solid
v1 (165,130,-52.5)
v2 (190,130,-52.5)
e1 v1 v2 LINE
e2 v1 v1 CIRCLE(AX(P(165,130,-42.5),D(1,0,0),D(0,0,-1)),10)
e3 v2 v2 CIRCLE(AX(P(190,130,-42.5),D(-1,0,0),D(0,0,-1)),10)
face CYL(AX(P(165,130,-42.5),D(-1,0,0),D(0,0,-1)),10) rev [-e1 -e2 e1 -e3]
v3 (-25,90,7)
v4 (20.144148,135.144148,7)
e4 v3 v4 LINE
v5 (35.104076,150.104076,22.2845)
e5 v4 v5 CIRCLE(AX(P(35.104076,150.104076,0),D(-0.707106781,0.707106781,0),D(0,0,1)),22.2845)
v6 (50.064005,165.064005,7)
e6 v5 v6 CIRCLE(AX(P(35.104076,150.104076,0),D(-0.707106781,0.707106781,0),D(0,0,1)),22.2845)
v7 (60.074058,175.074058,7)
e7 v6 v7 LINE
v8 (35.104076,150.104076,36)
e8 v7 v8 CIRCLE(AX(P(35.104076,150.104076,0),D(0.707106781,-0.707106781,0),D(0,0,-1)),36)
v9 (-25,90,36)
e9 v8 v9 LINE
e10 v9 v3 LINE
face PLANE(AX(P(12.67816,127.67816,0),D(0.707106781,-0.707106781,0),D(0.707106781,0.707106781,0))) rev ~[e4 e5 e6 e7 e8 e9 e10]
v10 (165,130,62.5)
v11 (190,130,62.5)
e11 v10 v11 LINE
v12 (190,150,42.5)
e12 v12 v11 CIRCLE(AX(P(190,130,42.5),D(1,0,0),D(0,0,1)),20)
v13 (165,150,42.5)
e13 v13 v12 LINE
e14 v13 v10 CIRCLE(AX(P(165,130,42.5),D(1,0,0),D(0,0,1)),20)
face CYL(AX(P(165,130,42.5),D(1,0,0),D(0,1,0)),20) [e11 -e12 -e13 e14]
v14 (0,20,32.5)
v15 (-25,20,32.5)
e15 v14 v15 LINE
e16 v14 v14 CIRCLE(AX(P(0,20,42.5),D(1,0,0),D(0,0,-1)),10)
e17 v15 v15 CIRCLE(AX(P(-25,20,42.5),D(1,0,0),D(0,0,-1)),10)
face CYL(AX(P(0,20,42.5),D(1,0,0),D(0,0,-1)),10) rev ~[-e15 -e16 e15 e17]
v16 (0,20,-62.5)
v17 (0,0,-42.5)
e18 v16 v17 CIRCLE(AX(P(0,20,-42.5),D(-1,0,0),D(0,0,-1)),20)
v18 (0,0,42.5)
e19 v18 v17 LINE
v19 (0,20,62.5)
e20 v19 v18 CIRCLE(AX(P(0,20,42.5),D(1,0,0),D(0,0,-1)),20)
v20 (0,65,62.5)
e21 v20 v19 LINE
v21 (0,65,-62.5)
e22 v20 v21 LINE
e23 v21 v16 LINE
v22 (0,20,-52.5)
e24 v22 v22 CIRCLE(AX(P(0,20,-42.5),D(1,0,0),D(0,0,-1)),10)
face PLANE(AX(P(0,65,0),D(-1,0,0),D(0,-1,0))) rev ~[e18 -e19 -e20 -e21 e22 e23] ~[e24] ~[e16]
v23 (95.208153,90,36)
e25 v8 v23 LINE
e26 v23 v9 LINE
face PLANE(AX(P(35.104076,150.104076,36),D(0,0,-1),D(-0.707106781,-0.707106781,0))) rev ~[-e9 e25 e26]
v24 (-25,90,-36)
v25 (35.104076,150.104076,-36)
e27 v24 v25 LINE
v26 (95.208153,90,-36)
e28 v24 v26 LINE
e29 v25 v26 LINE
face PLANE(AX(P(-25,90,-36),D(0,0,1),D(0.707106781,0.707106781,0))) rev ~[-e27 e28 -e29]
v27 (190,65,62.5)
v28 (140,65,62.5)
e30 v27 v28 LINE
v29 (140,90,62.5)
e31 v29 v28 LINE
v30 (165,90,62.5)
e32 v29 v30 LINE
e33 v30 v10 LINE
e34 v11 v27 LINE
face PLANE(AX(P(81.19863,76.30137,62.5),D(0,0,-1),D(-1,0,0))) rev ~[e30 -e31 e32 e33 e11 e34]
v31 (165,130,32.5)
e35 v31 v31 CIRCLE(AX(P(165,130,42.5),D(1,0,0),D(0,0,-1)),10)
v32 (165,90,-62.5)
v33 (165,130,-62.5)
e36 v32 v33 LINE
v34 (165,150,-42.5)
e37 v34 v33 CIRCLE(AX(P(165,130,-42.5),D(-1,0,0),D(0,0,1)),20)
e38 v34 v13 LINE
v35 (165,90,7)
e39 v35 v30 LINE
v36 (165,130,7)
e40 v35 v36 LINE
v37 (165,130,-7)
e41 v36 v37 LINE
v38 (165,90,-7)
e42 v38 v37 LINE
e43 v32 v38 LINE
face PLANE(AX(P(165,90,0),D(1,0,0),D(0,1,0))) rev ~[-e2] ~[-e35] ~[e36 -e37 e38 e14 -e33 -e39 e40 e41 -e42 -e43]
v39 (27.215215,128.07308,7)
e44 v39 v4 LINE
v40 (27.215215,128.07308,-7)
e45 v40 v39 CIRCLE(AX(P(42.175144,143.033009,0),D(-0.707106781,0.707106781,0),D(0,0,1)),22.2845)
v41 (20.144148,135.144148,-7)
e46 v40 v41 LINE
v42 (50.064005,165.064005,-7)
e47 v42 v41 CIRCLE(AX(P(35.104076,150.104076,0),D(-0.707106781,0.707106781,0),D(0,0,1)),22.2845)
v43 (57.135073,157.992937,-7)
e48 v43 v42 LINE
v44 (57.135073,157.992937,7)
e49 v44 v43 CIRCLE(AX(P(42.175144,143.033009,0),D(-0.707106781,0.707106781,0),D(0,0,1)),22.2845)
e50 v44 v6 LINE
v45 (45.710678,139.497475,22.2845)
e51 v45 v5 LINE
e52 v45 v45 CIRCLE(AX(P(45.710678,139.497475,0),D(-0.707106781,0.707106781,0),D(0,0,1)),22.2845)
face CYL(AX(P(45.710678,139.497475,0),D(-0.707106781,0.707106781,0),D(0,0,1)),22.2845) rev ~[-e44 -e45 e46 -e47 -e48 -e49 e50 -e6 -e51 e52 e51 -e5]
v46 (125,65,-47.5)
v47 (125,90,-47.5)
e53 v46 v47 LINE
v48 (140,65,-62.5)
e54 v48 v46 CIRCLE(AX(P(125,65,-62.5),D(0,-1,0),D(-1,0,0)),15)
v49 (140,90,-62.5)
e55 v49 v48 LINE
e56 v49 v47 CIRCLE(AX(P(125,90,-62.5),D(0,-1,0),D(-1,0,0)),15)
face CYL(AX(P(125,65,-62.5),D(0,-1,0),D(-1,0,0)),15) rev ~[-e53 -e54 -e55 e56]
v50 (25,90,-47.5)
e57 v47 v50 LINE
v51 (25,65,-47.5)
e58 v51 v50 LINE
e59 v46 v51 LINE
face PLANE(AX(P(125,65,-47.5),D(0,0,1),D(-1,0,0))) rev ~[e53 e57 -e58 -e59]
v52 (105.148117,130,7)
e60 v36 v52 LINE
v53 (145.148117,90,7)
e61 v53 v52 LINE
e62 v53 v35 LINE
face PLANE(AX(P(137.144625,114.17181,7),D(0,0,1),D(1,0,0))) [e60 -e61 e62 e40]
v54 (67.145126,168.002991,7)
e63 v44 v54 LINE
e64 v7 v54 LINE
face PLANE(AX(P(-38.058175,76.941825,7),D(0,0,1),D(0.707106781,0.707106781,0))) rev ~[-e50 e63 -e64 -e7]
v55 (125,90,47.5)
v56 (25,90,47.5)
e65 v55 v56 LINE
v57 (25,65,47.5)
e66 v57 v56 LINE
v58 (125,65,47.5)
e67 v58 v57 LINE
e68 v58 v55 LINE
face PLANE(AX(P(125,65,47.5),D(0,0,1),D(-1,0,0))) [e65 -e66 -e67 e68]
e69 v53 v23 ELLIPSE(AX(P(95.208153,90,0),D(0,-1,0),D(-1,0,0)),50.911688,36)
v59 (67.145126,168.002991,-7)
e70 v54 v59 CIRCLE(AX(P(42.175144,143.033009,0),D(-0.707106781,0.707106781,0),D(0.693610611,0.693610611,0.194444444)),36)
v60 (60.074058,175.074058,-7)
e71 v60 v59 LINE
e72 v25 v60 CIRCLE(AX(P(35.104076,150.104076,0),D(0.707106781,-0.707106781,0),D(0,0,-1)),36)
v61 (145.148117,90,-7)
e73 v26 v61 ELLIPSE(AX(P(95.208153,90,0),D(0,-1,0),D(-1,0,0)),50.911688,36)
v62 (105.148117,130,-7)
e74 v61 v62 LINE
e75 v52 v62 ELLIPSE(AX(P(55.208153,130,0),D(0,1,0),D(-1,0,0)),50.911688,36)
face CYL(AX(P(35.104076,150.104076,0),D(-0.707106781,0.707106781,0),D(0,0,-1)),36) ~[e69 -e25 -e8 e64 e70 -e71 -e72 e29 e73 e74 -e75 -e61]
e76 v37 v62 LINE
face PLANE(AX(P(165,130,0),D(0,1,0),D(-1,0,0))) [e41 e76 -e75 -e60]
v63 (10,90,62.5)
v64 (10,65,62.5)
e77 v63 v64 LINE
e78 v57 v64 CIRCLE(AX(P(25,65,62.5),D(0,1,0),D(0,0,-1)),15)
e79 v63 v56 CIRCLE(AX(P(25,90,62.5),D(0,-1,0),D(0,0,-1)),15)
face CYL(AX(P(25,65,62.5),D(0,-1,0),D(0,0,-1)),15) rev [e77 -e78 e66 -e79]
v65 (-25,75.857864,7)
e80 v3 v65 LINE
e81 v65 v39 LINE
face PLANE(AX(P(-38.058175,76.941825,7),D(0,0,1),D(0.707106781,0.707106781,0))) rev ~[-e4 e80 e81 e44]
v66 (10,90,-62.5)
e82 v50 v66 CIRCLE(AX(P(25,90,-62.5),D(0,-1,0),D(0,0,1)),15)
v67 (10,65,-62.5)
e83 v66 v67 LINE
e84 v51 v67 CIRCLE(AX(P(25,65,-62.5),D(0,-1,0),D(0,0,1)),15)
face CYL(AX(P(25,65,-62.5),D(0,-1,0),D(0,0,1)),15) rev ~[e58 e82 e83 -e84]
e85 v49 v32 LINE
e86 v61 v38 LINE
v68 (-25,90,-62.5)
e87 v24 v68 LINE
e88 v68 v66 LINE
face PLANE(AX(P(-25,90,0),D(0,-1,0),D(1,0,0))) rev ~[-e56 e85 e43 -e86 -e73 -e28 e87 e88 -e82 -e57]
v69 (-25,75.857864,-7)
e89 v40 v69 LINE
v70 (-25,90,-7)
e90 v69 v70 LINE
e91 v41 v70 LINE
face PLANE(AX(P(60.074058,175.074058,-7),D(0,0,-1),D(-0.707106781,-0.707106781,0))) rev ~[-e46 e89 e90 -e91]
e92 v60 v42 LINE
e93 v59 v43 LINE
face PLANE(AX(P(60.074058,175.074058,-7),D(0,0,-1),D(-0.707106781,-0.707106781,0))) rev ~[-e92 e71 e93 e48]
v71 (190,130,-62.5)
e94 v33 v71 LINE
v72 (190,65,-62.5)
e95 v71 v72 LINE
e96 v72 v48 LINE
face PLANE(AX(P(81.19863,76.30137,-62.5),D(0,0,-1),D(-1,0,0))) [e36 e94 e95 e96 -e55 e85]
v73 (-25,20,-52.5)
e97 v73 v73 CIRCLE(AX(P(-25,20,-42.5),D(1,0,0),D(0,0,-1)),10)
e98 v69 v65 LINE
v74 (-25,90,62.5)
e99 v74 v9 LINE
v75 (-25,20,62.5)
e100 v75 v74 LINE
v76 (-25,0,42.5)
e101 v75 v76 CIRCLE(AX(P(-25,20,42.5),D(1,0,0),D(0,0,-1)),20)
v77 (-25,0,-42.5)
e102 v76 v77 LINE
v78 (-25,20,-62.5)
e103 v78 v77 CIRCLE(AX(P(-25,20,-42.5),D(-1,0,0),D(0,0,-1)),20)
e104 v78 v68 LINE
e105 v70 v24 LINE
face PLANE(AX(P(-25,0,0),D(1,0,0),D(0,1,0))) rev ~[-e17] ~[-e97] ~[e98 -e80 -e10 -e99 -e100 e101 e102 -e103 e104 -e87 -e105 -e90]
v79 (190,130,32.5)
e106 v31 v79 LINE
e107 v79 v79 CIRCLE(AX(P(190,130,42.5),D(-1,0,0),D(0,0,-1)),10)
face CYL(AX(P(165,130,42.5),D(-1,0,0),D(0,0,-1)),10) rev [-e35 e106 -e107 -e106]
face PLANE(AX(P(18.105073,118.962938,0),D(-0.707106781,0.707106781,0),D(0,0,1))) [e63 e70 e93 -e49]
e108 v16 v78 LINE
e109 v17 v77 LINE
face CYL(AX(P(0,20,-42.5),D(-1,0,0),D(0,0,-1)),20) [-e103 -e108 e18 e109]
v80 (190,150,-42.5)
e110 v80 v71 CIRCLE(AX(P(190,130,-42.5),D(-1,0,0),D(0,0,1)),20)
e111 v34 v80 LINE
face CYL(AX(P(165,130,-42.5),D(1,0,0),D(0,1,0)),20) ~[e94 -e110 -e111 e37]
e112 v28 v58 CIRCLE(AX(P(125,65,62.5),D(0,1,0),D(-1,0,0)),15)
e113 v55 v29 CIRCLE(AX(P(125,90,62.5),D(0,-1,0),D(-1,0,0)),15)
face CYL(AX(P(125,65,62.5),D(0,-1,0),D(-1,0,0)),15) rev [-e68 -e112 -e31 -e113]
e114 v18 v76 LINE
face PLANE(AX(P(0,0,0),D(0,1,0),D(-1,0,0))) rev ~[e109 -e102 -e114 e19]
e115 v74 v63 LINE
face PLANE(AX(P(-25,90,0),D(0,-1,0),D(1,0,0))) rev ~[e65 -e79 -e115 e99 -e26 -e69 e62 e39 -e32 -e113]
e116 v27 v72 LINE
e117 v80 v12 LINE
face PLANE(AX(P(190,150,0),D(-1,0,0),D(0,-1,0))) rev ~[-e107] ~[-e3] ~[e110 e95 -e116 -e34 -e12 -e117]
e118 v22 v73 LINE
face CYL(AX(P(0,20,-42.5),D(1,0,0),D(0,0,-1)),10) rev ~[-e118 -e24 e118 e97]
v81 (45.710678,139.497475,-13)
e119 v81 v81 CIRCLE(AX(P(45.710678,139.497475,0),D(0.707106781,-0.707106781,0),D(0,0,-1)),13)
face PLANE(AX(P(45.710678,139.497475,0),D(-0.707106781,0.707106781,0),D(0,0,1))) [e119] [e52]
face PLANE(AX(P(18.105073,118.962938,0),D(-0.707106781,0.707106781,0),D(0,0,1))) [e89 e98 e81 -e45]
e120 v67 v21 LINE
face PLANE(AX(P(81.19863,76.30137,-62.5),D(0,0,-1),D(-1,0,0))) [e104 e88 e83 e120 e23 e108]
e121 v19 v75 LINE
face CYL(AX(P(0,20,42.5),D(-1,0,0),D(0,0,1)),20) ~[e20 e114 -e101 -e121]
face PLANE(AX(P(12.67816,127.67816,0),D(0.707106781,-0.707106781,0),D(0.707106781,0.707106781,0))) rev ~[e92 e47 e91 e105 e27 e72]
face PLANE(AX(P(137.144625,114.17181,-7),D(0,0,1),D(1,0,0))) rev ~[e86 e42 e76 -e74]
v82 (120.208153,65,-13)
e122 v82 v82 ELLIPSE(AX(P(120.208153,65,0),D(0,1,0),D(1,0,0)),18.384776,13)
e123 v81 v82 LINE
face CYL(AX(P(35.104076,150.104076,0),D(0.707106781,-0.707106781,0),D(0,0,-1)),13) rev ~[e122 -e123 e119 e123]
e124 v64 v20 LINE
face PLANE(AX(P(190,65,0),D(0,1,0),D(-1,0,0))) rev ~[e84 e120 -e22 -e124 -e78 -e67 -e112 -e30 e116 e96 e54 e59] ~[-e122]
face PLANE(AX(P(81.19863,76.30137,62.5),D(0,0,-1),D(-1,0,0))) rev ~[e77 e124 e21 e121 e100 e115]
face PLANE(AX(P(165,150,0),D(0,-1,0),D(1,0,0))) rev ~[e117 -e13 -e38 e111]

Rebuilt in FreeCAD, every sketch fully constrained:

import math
import FreeCAD as App
import Part
import Sketcher
from FreeCAD import Vector
Q = App.Units.Quantity


def edges_at(feature, points):
    """Names of the edges that pass closest to the given points."""
    edges = feature.Shape.Edges
    near = lambda p: min(range(len(edges)), key=lambda i: edges[i].distToShape(Part.Vertex(*p))[0])
    return sorted({f"Edge{near(p) + 1}" for p in points})

doc = App.newDocument("Part")
body = doc.addObject("PartDesign::Body", "Body")

# Sketch on XY plane
sketch1 = body.newObject("Sketcher::SketchObject", "Sketch")
sketch1.AttachmentSupport = (doc.getObject("XY_Plane"), [""])
sketch1.MapMode = "FlatFace"
sketch1.addGeometry([
    Part.LineSegment(Vector(190, 65, 0), Vector(190, 150, 0)),  # 0
    Part.LineSegment(Vector(190, 150, 0), Vector(165, 150, 0)),  # 1
    Part.LineSegment(Vector(165, 150, 0), Vector(165, 90, 0)),  # 2
    Part.LineSegment(Vector(165, 90, 0), Vector(-25, 90, 0)),  # 3
    Part.LineSegment(Vector(-25, 90, 0), Vector(-25, 0, 0)),  # 4
    Part.LineSegment(Vector(-25, 0, 0), Vector(0, 0, 0)),  # 5
    Part.LineSegment(Vector(0, 0, 0), Vector(0, 65, 0)),  # 6
    Part.LineSegment(Vector(0, 65, 0), Vector(190, 65, 0)),  # 7
], False)
sketch1.addConstraint([
    Sketcher.Constraint("Coincident", 0, 2, 1, 1),
    Sketcher.Constraint("Coincident", 1, 2, 2, 1),
    Sketcher.Constraint("Coincident", 2, 2, 3, 1),
    Sketcher.Constraint("Coincident", 3, 2, 4, 1),
    Sketcher.Constraint("Coincident", 4, 2, 5, 1),
    Sketcher.Constraint("Coincident", 5, 2, 6, 1),
    Sketcher.Constraint("Coincident", 6, 2, 7, 1),
    Sketcher.Constraint("Coincident", 7, 2, 0, 1),
    Sketcher.Constraint("Vertical", 0),
    Sketcher.Constraint("Horizontal", 1),
    Sketcher.Constraint("Vertical", 2),
    Sketcher.Constraint("Horizontal", 3),
    Sketcher.Constraint("Vertical", 4),
    Sketcher.Constraint("Horizontal", 5),
    Sketcher.Constraint("Vertical", 6),
    Sketcher.Constraint("Horizontal", 7),
    Sketcher.Constraint("Coincident", 5, 2, -1, 1),
    Sketcher.Constraint("Equal", 1, 5),
    Sketcher.Constraint("DistanceX", 1, 2, 1, 1, Q("25 mm")),
    Sketcher.Constraint("DistanceX", 3, 2, 3, 1, Q("190 mm")),
    Sketcher.Constraint("DistanceY", 0, 1, 0, 2, Q("85 mm")),
    Sketcher.Constraint("DistanceY", 2, 2, 2, 1, Q("60 mm")),
    Sketcher.Constraint("DistanceY", 4, 2, 4, 1, Q("90 mm")),
])
pad1 = body.newObject("PartDesign::Pad", "Pad")
pad1.Profile = sketch1
pad1.Length = 125
pad1.Midplane = True

# Sketch on an angled plane
sketch2 = body.newObject("Sketcher::SketchObject", "Sketch001")
sketch2.Placement = App.Placement(Vector(-57.5, 57.5, 0), App.Rotation(Vector(0.707106781, 0.707106781, 0), Vector(0, 0, 0.999999999), Vector(0.707106781, -0.707106781, 0), "ZXY"))
sketch2.addGeometry([
    Part.LineSegment(Vector(45.961941, -36, 0), Vector(130.961941, -36, 0)),
    Part.ArcOfCircle(Part.Circle(Vector(130.961941, 0, 0), Vector(0, 0, 1), 36), math.radians(-90), math.radians(90)),
    Part.LineSegment(Vector(130.961941, 36, 0), Vector(45.961941, 36, 0)),
    Part.LineSegment(Vector(45.961941, 36, 0), Vector(45.961941, -36, 0)),
], False)
sketch2.addConstraint([
    Sketcher.Constraint("Tangent", 0, 2, 1, 1),
    Sketcher.Constraint("Tangent", 1, 2, 2, 1),
    Sketcher.Constraint("Coincident", 2, 2, 3, 1),
    Sketcher.Constraint("Coincident", 3, 2, 0, 1),
    Sketcher.Constraint("Horizontal", 0),
    Sketcher.Constraint("Horizontal", 2),
    Sketcher.Constraint("Vertical", 3),
    Sketcher.Constraint("PointOnObject", 1, 3, -1),
    Sketcher.Constraint("Radius", 1, Q("36 mm")),
    Sketcher.Constraint("DistanceX", 0, 1, 0, 2, Q("85 mm")),
    Sketcher.Constraint("DistanceX", -1, 1, 1, 3, Q("130.961941 mm")),
])
pad2 = body.newObject("PartDesign::Pad", "Pad001")
pad2.Profile = sketch2
pad2.Type = "UpToFirst"

# Sketch on XZ plane
sketch3 = body.newObject("Sketcher::SketchObject", "Sketch002")
sketch3.AttachmentSupport = (doc.getObject("XZ_Plane"), [""])
sketch3.MapMode = "FlatFace"
sketch3.AttachmentOffset = App.Placement(Vector(0, 0, -65), App.Rotation())
sketch3.addGeometry([
    Part.LineSegment(Vector(25, 47.5, 0), Vector(125, 47.5, 0)),  # 0
    Part.ArcOfCircle(Part.Circle(Vector(125, 62.5, 0), Vector(0, 0, 1), 15), math.radians(-90), math.radians(180)),  # 1
    Part.LineSegment(Vector(110, 62.5, 0), Vector(40, 62.5, 0)),  # 2
    Part.ArcOfCircle(Part.Circle(Vector(25, 62.5, 0), Vector(0, 0, 1), 15), math.radians(0), math.radians(270)),  # 3
    Part.LineSegment(Vector(125, -47.5, 0), Vector(25, -47.5, 0)),  # 4
    Part.ArcOfCircle(Part.Circle(Vector(25, -62.5, 0), Vector(0, 0, 1), 15), math.radians(90), math.radians(360)),  # 5
    Part.LineSegment(Vector(40, -62.5, 0), Vector(110, -62.5, 0)),  # 6
    Part.ArcOfCircle(Part.Circle(Vector(125, -62.5, 0), Vector(0, 0, 1), 15), math.radians(180), math.radians(450)),  # 7
], False)
sketch3.addConstraint([
    Sketcher.Constraint("Tangent", 0, 2, 1, 1),
    Sketcher.Constraint("Coincident", 1, 2, 2, 1),
    Sketcher.Constraint("Coincident", 2, 2, 3, 1),
    Sketcher.Constraint("Tangent", 3, 2, 0, 1),
    Sketcher.Constraint("Tangent", 4, 2, 5, 1),
    Sketcher.Constraint("Coincident", 5, 2, 6, 1),
    Sketcher.Constraint("Coincident", 6, 2, 7, 1),
    Sketcher.Constraint("Tangent", 7, 2, 4, 1),
    Sketcher.Constraint("Horizontal", 0),
    Sketcher.Constraint("Horizontal", 2),
    Sketcher.Constraint("Horizontal", 4),
    Sketcher.Constraint("Horizontal", 6),
    Sketcher.Constraint("Equal", 1, 3),
    Sketcher.Constraint("Equal", 3, 5),
    Sketcher.Constraint("Equal", 5, 7),
    Sketcher.Constraint("Symmetric", 3, 3, 5, 3, -1),
    Sketcher.Constraint("Symmetric", 1, 2, 6, 2, -1),
    Sketcher.Constraint("Horizontal", 3, 3, 1, 2),
    Sketcher.Constraint("Radius", 1, Q("15 mm")),
    Sketcher.Constraint("DistanceX", 0, 1, 0, 2, Q("100 mm")),
    Sketcher.Constraint("DistanceX", -1, 1, 1, 3, Q("125 mm")),
    Sketcher.Constraint("DistanceY", 5, 3, 3, 3, Q("125 mm")),
])
pocket1 = body.newObject("PartDesign::Pocket", "Pocket")
pocket1.Profile = sketch3
pocket1.Type = "ThroughAll"
doc.recompute()

fillet = body.newObject("PartDesign::Fillet", "Fillet")
fillet.Base = (pocket1, edges_at(pocket1, [
    (177.5, 150, -62.5),
    (-12.5, 0, 62.5),
    (177.5, 150, 62.5),
    (-12.5, 0, -62.5),
]))
fillet.Radius = 20

# Sketch on YZ plane
sketch4 = body.newObject("Sketcher::SketchObject", "Sketch003")
sketch4.AttachmentSupport = (doc.getObject("YZ_Plane"), [""])
sketch4.MapMode = "FlatFace"
sketch4.addGeometry([
    Part.Circle(Vector(20, -42.5, 0), Vector(0, 0, 1), 10),
    Part.Circle(Vector(20, 42.5, 0), Vector(0, 0, 1), 10),
], False)
sketch4.addConstraint([
    Sketcher.Constraint("Equal", 0, 1),
    Sketcher.Constraint("Symmetric", 0, 3, 1, 3, -1),
    Sketcher.Constraint("Diameter", 0, Q("20 mm")),
    Sketcher.Constraint("DistanceX", -1, 1, 0, 3, Q("20 mm")),
    Sketcher.Constraint("DistanceY", 0, 3, 1, 3, Q("85 mm")),
])
pocket2 = body.newObject("PartDesign::Pocket", "Pocket001")
pocket2.Profile = sketch4
pocket2.Type = "ThroughAll"

# Sketch on an angled plane
sketch5 = body.newObject("Sketcher::SketchObject", "Sketch004")
sketch5.Placement = App.Placement(Vector(-57.5, 57.5, 0), App.Rotation(Vector(0, 0, 1), Vector(0.707106781, 0.707106781, 0), Vector(-0.707106781, 0.707106781, 0), "ZXY"))
sketch5.addGeometry([
    Part.LineSegment(Vector(-7, 166.274828, 0), Vector(-7, 27.494892, 0)),
    Part.LineSegment(Vector(-7, 27.494892, 0), Vector(7, 27.494892, 0)),
    Part.LineSegment(Vector(7, 27.494892, 0), Vector(7, 166.274828, 0)),
    Part.ArcOfCircle(Part.Circle(Vector(0, 130.961941, 0), Vector(0, 0, 1), 36), math.radians(78.787729), math.radians(101.212271)),
], False)
sketch5.addConstraint([
    Sketcher.Constraint("Coincident", 0, 2, 1, 1),
    Sketcher.Constraint("Coincident", 1, 2, 2, 1),
    Sketcher.Constraint("Coincident", 2, 2, 3, 1),
    Sketcher.Constraint("Coincident", 3, 2, 0, 1),
    Sketcher.Constraint("Vertical", 0),
    Sketcher.Constraint("Horizontal", 1),
    Sketcher.Constraint("Vertical", 2),
    Sketcher.Constraint("Symmetric", 2, 2, 3, 2, -2),
    Sketcher.Constraint("Radius", 3, Q("36 mm")),
    Sketcher.Constraint("DistanceX", 1, 1, 1, 2, Q("14 mm")),
    Sketcher.Constraint("DistanceY", 0, 2, 0, 1, Q("138.779936 mm")),
    Sketcher.Constraint("DistanceY", -1, 1, 3, 3, Q("130.961941 mm")),
])
pocket3 = body.newObject("PartDesign::Pocket", "Pocket002")
pocket3.Profile = sketch5
pocket3.Length = 10

# Sketch on an angled plane
sketch6 = body.newObject("Sketcher::SketchObject", "Sketch005")
sketch6.Placement = App.Placement(Vector(-57.5, 57.5, 0), App.Rotation(Vector(0, 0, 1), Vector(0.707106781, 0.707106781, 0), Vector(-0.707106781, 0.707106781, 0), "ZXY"))
sketch6.addGeometry(Part.Circle(Vector(0, 130.961941, 0), Vector(0, 0, 1), 13), False)
sketch6.addConstraint([
    Sketcher.Constraint("PointOnObject", 0, 3, -2),
    Sketcher.Constraint("Diameter", 0, Q("26 mm")),
    Sketcher.Constraint("DistanceY", -1, 1, 0, 3, Q("130.961941 mm")),
])
doc.recompute()
hole = body.newObject("PartDesign::Hole", "Hole")
hole.Profile = sketch6
hole.ThreadType = "None"
hole.Diameter = 26
hole.DepthType = "ThroughAll"
hole.HoleCutType = "Counterbore"
hole.HoleCutDiameter = 44.569
hole.HoleCutDepth = 15

# Sketch on YZ plane
sketch7 = body.newObject("Sketcher::SketchObject", "Sketch006")
sketch7.AttachmentSupport = (doc.getObject("YZ_Plane"), [""])
sketch7.MapMode = "FlatFace"
sketch7.AttachmentOffset = App.Placement(Vector(0, 0, 165), App.Rotation())
sketch7.addGeometry([
    Part.Circle(Vector(20, -42.5, 0), Vector(0, 0, 1), 10),
    Part.Circle(Vector(20, 42.5, 0), Vector(0, 0, 1), 10),
    Part.Circle(Vector(130, -42.5, 0), Vector(0, 0, 1), 10),
    Part.Circle(Vector(130, 42.5, 0), Vector(0, 0, 1), 10),
], False)
sketch7.addConstraint([
    Sketcher.Constraint("Equal", 0, 1),
    Sketcher.Constraint("Equal", 1, 2),
    Sketcher.Constraint("Equal", 2, 3),
    Sketcher.Constraint("Symmetric", 0, 3, 1, 3, -1),
    Sketcher.Constraint("Symmetric", 2, 3, 3, 3, -1),
    Sketcher.Constraint("Horizontal", 0, 3, 2, 3),
    Sketcher.Constraint("Diameter", 0, Q("20 mm")),
    Sketcher.Constraint("DistanceX", -1, 1, 0, 3, Q("20 mm")),
    Sketcher.Constraint("DistanceX", -1, 1, 2, 3, Q("130 mm")),
    Sketcher.Constraint("DistanceY", 0, 3, 1, 3, Q("85 mm")),
])
pocket4 = body.newObject("PartDesign::Pocket", "Pocket003")
pocket4.Profile = sketch7
pocket4.Type = "ThroughAll"
pocket4.Reversed = True

# Sketch on XY plane
sketch8 = body.newObject("Sketcher::SketchObject", "Sketch007")
sketch8.AttachmentSupport = (doc.getObject("XY_Plane"), [""])
sketch8.MapMode = "FlatFace"
sketch8.addGeometry([
    Part.LineSegment(Vector(165, 130, 0), Vector(97.583974, 130, 0)),
    Part.LineSegment(Vector(97.583974, 130, 0), Vector(137.512678, 90, 0)),
    Part.LineSegment(Vector(137.512678, 90, 0), Vector(165, 90, 0)),
    Part.LineSegment(Vector(165, 90, 0), Vector(165, 130, 0)),
], False)
sketch8.addConstraint([
    Sketcher.Constraint("Coincident", 0, 2, 1, 1),
    Sketcher.Constraint("Coincident", 1, 2, 2, 1),
    Sketcher.Constraint("Coincident", 2, 2, 3, 1),
    Sketcher.Constraint("Coincident", 3, 2, 0, 1),
    Sketcher.Constraint("Horizontal", 0),
    Sketcher.Constraint("Horizontal", 2),
    Sketcher.Constraint("Vertical", 3),
    Sketcher.Constraint("DistanceY", 3, 1, 3, 2, Q("40 mm")),
    Sketcher.Constraint("DistanceY", -1, 1, 0, 2, Q("130 mm")),
    Sketcher.Constraint("DistanceX", -1, 1, 2, 2, Q("165 mm")),
    Sketcher.Constraint("Distance", 1, Q("56.518151 mm")),
    Sketcher.Constraint("DistanceX", 0, 2, 0, 1, Q("67.416026 mm")),
])
pad3 = body.newObject("PartDesign::Pad", "Pad002")
pad3.Profile = sketch8
pad3.Length = 14
pad3.Midplane = True

doc.recompute()
